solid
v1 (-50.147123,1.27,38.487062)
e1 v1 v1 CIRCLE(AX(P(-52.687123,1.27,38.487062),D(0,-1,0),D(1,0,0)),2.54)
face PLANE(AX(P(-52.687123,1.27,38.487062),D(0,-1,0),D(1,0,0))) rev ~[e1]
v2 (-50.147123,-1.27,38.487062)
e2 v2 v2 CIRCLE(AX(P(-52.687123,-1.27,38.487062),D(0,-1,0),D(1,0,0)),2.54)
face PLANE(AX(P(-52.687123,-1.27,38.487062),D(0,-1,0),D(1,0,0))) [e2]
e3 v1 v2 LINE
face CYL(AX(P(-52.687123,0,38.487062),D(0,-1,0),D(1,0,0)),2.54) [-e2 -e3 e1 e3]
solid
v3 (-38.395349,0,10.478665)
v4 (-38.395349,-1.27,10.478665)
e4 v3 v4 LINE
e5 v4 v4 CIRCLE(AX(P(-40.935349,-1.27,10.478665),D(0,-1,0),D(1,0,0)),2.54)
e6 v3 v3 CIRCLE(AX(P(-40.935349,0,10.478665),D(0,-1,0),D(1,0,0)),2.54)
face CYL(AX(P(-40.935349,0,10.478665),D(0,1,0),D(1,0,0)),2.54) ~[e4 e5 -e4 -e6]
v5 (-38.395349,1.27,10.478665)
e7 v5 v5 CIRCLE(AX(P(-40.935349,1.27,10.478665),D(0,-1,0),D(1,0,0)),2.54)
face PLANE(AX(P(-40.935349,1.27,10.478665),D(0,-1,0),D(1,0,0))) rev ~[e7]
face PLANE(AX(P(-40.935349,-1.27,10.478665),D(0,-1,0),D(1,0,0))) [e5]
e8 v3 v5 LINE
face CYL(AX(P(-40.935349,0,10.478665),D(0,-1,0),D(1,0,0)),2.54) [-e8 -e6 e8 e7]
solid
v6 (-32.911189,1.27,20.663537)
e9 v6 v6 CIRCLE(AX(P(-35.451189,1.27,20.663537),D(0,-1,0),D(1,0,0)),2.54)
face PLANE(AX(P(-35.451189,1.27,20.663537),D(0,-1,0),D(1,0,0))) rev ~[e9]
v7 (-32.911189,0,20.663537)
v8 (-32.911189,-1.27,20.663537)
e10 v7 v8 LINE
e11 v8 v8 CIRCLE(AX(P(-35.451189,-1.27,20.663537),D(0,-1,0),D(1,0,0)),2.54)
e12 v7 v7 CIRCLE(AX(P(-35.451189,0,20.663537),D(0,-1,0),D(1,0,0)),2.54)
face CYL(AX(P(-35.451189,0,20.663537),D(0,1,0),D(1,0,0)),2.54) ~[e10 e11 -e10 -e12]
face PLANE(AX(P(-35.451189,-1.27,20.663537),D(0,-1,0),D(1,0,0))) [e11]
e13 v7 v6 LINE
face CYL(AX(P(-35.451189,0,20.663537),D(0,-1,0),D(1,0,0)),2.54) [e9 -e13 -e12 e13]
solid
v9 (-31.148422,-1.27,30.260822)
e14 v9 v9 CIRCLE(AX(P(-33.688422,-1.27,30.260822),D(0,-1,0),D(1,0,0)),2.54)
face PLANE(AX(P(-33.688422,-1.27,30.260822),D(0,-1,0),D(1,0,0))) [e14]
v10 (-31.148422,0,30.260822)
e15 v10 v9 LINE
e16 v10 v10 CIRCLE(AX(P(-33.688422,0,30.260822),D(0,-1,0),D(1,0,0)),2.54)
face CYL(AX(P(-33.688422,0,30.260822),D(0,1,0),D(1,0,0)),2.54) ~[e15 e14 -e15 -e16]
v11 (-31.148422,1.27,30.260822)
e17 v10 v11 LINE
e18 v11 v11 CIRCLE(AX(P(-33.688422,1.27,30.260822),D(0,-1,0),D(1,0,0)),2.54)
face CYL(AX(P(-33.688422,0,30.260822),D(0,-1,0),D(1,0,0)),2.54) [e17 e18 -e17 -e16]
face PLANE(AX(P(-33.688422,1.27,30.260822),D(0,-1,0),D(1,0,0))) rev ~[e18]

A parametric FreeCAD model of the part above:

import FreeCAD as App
import Part
import Sketcher
Q = App.Units.Quantity

doc = App.newDocument("Part")
body = doc.addObject("PartDesign::Body", "Body")
body.AllowCompound = True

sketch1 = body.newObject("Sketcher::SketchObject", "Sketch")
sketch1.AttachmentSupport = (doc.getObject("XZ_Plane"), [""])
sketch1.MapMode = "FlatFace"
sketch1.addGeometry([
    Part.Circle(App.Vector(-35.5, 20.7, 0), App.Vector(0, 0, 1), 2.5),
    Part.Circle(App.Vector(-33.7, 30.3, 0), App.Vector(0, 0, 1), 2.5),
    Part.Circle(App.Vector(-40.9, 10.5, 0), App.Vector(0, 0, 1), 2.5),
    Part.Circle(App.Vector(-52.7, 38.5, 0), App.Vector(0, 0, 1), 2.5),
], False)
sketch1.addConstraint([
    Sketcher.Constraint("Equal", 0, 1),
    Sketcher.Constraint("Equal", 1, 2),
    Sketcher.Constraint("Equal", 2, 3),
    Sketcher.Constraint("Diameter", 0, Q("0.2 in")),
    Sketcher.Constraint("DistanceX", 3, 3, 1, 3, 18.998701),
    Sketcher.Constraint("DistanceX", 0, 3, -1, 1, 35.451189),
    Sketcher.Constraint("DistanceX", 2, 3, -1, 1, 40.935349),
    Sketcher.Constraint("DistanceY", 1, 3, 3, 3, 8.22624),
    Sketcher.Constraint("DistanceY", -1, 1, 0, 3, 20.663537),
    Sketcher.Constraint("DistanceX", 1, 3, -1, 1, 33.688422),
    Sketcher.Constraint("DistanceY", -1, 1, 1, 3, 30.260822),
    Sketcher.Constraint("DistanceY", -1, 1, 2, 3, 10.478665),
])
pad1 = body.newObject("PartDesign::Pad", "Pad")
pad1.Profile = sketch1
pad1.Length = Q("0.1 in")
pad1.Midplane = True

doc.recompute()
